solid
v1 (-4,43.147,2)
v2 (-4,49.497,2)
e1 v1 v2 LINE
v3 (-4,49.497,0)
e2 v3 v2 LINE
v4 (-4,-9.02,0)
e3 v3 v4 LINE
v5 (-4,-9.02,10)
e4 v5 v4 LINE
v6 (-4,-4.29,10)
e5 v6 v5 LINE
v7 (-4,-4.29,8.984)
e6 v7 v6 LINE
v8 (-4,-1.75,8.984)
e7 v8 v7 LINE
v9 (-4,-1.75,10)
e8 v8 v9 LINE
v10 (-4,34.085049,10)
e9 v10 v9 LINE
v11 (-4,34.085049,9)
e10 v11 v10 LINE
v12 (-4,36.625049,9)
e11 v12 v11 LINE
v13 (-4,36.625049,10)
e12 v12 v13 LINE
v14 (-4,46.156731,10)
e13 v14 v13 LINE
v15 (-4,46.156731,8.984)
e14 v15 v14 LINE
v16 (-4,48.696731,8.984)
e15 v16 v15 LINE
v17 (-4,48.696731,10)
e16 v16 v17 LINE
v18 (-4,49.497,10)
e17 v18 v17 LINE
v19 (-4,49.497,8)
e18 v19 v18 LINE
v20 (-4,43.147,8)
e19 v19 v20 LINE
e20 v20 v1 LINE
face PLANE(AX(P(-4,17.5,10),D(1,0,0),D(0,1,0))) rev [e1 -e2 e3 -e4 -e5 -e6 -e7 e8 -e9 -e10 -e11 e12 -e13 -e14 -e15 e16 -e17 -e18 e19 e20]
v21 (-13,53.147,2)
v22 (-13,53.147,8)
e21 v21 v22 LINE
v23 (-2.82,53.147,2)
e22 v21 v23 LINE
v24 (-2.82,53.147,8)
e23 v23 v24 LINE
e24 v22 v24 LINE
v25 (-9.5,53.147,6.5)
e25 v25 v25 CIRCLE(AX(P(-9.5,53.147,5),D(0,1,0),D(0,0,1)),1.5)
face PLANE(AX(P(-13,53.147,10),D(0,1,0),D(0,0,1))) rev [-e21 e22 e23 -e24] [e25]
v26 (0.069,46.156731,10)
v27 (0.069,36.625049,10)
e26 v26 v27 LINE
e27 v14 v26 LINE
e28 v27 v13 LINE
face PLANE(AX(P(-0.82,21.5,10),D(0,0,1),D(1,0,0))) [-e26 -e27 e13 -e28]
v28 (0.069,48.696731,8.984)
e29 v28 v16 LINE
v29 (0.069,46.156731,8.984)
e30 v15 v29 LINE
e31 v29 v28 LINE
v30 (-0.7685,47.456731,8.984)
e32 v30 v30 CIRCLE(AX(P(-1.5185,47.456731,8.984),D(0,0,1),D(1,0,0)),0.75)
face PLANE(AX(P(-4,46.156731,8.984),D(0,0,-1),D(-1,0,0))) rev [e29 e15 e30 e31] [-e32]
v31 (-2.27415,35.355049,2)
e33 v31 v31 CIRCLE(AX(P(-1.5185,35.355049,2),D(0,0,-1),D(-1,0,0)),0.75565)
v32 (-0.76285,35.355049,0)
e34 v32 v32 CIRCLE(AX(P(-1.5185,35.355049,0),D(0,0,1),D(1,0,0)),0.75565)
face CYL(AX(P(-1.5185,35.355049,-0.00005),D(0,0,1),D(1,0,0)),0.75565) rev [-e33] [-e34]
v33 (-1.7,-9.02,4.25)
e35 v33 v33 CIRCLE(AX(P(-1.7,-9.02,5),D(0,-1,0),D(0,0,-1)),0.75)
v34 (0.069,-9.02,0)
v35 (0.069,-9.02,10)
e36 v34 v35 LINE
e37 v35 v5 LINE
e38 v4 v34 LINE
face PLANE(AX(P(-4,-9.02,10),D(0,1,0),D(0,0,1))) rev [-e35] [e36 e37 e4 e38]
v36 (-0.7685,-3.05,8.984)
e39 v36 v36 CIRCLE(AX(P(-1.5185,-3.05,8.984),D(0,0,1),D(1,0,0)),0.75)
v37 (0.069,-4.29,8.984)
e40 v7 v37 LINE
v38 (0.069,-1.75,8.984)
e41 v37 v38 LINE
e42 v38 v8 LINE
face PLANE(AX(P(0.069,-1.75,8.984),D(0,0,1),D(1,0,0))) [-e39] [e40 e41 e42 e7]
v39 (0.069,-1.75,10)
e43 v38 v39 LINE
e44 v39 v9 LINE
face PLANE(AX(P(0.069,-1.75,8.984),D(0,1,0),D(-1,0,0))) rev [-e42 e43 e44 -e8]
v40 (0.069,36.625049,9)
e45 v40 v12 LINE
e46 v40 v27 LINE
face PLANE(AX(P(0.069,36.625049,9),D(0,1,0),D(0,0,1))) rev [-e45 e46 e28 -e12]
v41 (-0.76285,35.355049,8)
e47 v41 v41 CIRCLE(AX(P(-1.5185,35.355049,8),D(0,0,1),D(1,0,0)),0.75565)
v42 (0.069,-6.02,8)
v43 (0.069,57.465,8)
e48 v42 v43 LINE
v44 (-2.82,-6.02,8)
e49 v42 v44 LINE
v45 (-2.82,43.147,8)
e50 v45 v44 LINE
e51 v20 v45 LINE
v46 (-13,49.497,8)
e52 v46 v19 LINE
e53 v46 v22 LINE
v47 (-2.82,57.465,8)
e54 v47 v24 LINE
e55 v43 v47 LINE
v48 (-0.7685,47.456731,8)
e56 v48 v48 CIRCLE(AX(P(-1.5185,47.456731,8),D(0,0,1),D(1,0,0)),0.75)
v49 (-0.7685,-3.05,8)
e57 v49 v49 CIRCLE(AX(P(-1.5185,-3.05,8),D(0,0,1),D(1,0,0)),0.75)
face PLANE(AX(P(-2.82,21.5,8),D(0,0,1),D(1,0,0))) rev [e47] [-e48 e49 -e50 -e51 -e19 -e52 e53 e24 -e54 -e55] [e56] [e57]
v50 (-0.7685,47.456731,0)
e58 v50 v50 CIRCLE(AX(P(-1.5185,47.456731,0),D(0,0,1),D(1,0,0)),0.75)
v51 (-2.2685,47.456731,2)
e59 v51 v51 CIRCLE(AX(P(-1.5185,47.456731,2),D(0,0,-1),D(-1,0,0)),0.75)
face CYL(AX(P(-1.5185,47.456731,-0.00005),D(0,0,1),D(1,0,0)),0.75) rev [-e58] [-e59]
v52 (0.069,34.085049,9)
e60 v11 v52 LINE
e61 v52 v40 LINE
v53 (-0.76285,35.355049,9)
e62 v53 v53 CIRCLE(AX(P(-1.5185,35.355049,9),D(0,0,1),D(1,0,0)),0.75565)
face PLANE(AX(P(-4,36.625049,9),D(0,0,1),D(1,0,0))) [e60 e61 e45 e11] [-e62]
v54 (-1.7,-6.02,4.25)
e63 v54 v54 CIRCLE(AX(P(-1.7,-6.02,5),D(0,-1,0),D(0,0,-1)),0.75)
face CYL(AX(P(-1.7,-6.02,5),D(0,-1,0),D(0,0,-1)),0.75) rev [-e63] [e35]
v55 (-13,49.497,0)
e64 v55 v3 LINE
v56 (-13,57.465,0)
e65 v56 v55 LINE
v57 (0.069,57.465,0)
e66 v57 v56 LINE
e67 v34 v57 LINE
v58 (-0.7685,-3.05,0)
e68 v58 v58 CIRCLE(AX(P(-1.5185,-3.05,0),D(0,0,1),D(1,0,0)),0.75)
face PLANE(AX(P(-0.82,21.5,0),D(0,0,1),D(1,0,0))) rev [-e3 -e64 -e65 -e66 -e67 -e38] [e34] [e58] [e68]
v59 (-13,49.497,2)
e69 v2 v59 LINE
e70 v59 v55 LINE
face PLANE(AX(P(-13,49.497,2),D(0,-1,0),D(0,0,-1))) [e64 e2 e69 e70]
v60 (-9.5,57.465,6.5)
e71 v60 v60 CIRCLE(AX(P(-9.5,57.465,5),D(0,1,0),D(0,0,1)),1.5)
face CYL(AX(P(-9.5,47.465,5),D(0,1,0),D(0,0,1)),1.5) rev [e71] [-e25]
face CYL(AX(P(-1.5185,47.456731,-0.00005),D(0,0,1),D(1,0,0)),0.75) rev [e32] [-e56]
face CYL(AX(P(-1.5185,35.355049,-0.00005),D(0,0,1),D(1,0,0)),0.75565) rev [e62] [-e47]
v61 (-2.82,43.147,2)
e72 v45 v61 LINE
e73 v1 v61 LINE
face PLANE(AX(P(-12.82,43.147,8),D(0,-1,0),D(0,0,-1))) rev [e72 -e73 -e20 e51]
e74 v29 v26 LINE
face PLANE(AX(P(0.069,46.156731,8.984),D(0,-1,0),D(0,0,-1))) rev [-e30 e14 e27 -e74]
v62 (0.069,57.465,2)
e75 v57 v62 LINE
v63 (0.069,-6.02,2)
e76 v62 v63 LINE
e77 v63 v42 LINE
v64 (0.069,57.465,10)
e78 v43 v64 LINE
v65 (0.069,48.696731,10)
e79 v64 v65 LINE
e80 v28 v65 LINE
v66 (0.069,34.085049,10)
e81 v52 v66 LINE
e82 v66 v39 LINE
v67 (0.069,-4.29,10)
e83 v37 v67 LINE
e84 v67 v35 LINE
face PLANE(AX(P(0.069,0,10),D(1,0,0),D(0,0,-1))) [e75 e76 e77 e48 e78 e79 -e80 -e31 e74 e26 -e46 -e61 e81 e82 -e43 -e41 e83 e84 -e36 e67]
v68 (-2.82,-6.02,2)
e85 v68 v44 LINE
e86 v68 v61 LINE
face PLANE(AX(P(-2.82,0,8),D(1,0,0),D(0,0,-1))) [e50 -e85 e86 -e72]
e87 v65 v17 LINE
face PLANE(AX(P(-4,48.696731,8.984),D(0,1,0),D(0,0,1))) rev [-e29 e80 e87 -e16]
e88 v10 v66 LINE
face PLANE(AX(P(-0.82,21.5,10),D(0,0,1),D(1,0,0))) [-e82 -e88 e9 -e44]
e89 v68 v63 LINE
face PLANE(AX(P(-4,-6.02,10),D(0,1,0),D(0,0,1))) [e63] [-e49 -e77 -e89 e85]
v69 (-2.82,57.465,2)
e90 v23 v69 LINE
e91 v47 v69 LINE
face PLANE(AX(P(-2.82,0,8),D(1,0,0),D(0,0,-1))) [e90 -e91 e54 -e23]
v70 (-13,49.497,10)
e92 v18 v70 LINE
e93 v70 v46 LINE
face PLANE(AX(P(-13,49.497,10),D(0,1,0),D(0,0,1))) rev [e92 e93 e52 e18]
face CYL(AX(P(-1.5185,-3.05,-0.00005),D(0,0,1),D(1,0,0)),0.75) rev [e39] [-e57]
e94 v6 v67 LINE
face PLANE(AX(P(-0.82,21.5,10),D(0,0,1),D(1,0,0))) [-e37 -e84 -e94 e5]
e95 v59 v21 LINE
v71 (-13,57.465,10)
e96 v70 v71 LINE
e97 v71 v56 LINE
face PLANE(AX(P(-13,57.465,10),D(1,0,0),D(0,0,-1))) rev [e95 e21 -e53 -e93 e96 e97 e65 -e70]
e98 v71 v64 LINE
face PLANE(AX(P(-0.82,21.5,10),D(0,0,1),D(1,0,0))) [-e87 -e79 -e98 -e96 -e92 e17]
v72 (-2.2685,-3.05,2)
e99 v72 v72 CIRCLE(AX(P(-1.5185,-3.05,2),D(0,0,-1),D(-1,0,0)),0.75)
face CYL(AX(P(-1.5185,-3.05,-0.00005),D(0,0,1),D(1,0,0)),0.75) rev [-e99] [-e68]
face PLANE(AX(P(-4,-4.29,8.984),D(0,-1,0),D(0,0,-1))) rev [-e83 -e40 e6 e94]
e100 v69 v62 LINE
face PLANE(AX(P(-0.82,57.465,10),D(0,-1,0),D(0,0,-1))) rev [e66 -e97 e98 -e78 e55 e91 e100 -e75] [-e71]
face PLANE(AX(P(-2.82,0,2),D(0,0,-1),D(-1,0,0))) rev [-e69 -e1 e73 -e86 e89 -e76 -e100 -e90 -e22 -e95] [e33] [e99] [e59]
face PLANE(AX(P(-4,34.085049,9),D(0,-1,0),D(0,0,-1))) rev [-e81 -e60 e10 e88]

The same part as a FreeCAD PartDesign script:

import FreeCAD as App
import Part
import Sketcher
from FreeCAD import Vector
Q = App.Units.Quantity

doc = App.newDocument("Part")
body = doc.addObject("PartDesign::Body", "Body")

sketch1 = doc.addObject("Sketcher::SketchObject", "Sketch")
body.addObject(sketch1)
sketch1.AttachmentSupport = (doc.XY_Plane, [""])
sketch1.MapMode = "FlatFace"
sketch1.addGeometry([
    Part.LineSegment(Vector(-4, 0, 0), Vector(-0.8, 0, 0)),
    Part.LineSegment(Vector(-0.8, 0, 0), Vector(-0.8, 21.5, 0)),
    Part.LineSegment(Vector(-0.8, 21.5, 0), Vector(-6.3, 21.5, 0)),
    Part.LineSegment(Vector(-6.3, 21.5, 0), Vector(-6.3, 17.5, 0)),
    Part.LineSegment(Vector(-6.3, 17.5, 0), Vector(-4, 17.5, 0)),
    Part.LineSegment(Vector(-4, 17.5, 0), Vector(-4, 0, 0)),
], False)
sketch1.addConstraint([
    Sketcher.Constraint("Coincident", 0, 2, 1, 1),
    Sketcher.Constraint("Coincident", 1, 2, 2, 1),
    Sketcher.Constraint("Coincident", 2, 2, 3, 1),
    Sketcher.Constraint("Coincident", 3, 2, 4, 1),
    Sketcher.Constraint("Coincident", 4, 2, 5, 1),
    Sketcher.Constraint("Coincident", 5, 2, 0, 1),
    Sketcher.Constraint("Horizontal", 0),
    Sketcher.Constraint("Vertical", 1),
    Sketcher.Constraint("Horizontal", 2),
    Sketcher.Constraint("Vertical", 3),
    Sketcher.Constraint("Horizontal", 4),
    Sketcher.Constraint("Vertical", 5),
    Sketcher.Constraint("PointOnObject", 0, 2, -1),
    Sketcher.Constraint("DistanceY", 3, 2, 3, 1, Q("4 mm")),
    Sketcher.Constraint("DistanceX", 2, 2, 2, 1, Q("5.5 mm")),
    Sketcher.Constraint("DistanceY", 1, 1, 1, 2, Q("21.5 mm")),
    Sketcher.Constraint("DistanceX", 4, 2, -1, 1, Q("4 mm")),
    Sketcher.Constraint("DistanceX", 0, 1, 0, 2, Q("3.18 mm")),
])
pad1 = doc.addObject("PartDesign::Pad", "Pad")
body.addObject(pad1)
pad1.Profile = sketch1
pad1.Length = 10

sketch2 = doc.addObject("Sketcher::SketchObject", "Sketch001")
body.addObject(sketch2)
sketch2.AttachmentSupport = (doc.YZ_Plane, [""])
sketch2.MapMode = "FlatFace"
sketch2.AttachmentOffset = App.Placement(Vector(0, 0, -0.82), App.Rotation())
sketch2.addGeometry([
    Part.LineSegment(Vector(22, 8, 0), Vector(0, 8, 0)),
    Part.LineSegment(Vector(0, 8, 0), Vector(0, 2, 0)),
    Part.LineSegment(Vector(0, 2, 0), Vector(22, 2, 0)),
    Part.LineSegment(Vector(22, 2, 0), Vector(22, 8, 0)),
], False)
sketch2.addConstraint([
    Sketcher.Constraint("Coincident", 0, 2, 1, 1),
    Sketcher.Constraint("Coincident", 1, 2, 2, 1),
    Sketcher.Constraint("Coincident", 2, 2, 3, 1),
    Sketcher.Constraint("Coincident", 3, 2, 0, 1),
    Sketcher.Constraint("Horizontal", 0),
    Sketcher.Constraint("Vertical", 1),
    Sketcher.Constraint("Horizontal", 2),
    Sketcher.Constraint("Vertical", 3),
    Sketcher.Constraint("PointOnObject", 0, 2, -2),
    Sketcher.Constraint("DistanceY", 1, 2, 1, 1, Q("6 mm")),
    Sketcher.Constraint("DistanceX", 0, 2, 0, 1, Q("21.5 mm")),
    Sketcher.Constraint("DistanceY", -1, 1, 0, 2, Q("8 mm")),
])
pocket1 = doc.addObject("PartDesign::Pocket", "Pocket")
body.addObject(pocket1)
pocket1.Profile = sketch2
pocket1.Length = 2

sketch3 = doc.addObject("Sketcher::SketchObject", "Sketch002")
body.addObject(sketch3)
sketch3.AttachmentSupport = (doc.YZ_Plane, [""])
sketch3.MapMode = "FlatFace"
sketch3.AttachmentOffset = App.Placement(Vector(0, 0, -6.32), App.Rotation())
sketch3.addGeometry([
    Part.LineSegment(Vector(21.5, 0, 0), Vector(17.5, 0, 0)),
    Part.LineSegment(Vector(17.5, 0, 0), Vector(17.5, 10, 0)),
    Part.LineSegment(Vector(17.5, 10, 0), Vector(21.5, 10, 0)),
    Part.LineSegment(Vector(21.5, 10, 0), Vector(21.5, 0, 0)),
], False)
sketch3.addConstraint([
    Sketcher.Constraint("Coincident", 0, 2, 1, 1),
    Sketcher.Constraint("Coincident", 1, 2, 2, 1),
    Sketcher.Constraint("Coincident", 2, 2, 3, 1),
    Sketcher.Constraint("Coincident", 3, 2, 0, 1),
    Sketcher.Constraint("Horizontal", 0),
    Sketcher.Constraint("Vertical", 1),
    Sketcher.Constraint("Horizontal", 2),
    Sketcher.Constraint("Vertical", 3),
    Sketcher.Constraint("PointOnObject", 0, 2, -1),
    Sketcher.Constraint("DistanceX", 0, 2, 0, 1, Q("4 mm")),
    Sketcher.Constraint("DistanceY", 1, 1, 1, 2, Q("10 mm")),
    Sketcher.Constraint("DistanceX", -1, 1, 0, 2, Q("17.5 mm")),
])
pocket2 = doc.addObject("PartDesign::Pocket", "Pocket001")
body.addObject(pocket2)
pocket2.Profile = sketch3
pocket2.Length = 2.32
pocket2.Reversed = True

sketch4 = doc.addObject("Sketcher::SketchObject", "Sketch003")
body.addObject(sketch4)
sketch4.AttachmentSupport = (doc.XZ_Plane, [""])
sketch4.MapMode = "FlatFace"
sketch4.AttachmentOffset = App.Placement(Vector(0, 0, -21.5), App.Rotation())
sketch4.addGeometry([
    Part.LineSegment(Vector(-4, 10, 0), Vector(-0.8, 10, 0)),
    Part.LineSegment(Vector(-0.8, 10, 0), Vector(-0.8, 8, 0)),
    Part.LineSegment(Vector(-0.8, 8, 0), Vector(-2.8, 8, 0)),
    Part.LineSegment(Vector(-2.8, 8, 0), Vector(-2.8, 2, 0)),
    Part.LineSegment(Vector(-2.8, 2, 0), Vector(-0.8, 2, 0)),
    Part.LineSegment(Vector(-0.8, 2, 0), Vector(-0.8, 0, 0)),
    Part.LineSegment(Vector(-0.8, 0, 0), Vector(-4, 0, 0)),
    Part.LineSegment(Vector(-4, 0, 0), Vector(-4, 10, 0)),
], False)
sketch4.addConstraint([
    Sketcher.Constraint("Coincident", 0, 2, 1, 1),
    Sketcher.Constraint("Coincident", 1, 2, 2, 1),
    Sketcher.Constraint("Coincident", 2, 2, 3, 1),
    Sketcher.Constraint("Coincident", 3, 2, 4, 1),
    Sketcher.Constraint("Coincident", 4, 2, 5, 1),
    Sketcher.Constraint("Coincident", 5, 2, 6, 1),
    Sketcher.Constraint("Coincident", 6, 2, 7, 1),
    Sketcher.Constraint("Coincident", 7, 2, 0, 1),
    Sketcher.Constraint("Horizontal", 0),
    Sketcher.Constraint("Vertical", 1),
    Sketcher.Constraint("Horizontal", 2),
    Sketcher.Constraint("Vertical", 3),
    Sketcher.Constraint("Horizontal", 4),
    Sketcher.Constraint("Vertical", 5),
    Sketcher.Constraint("Horizontal", 6),
    Sketcher.Constraint("Vertical", 7),
    Sketcher.Constraint("PointOnObject", 5, 2, -1),
    Sketcher.Constraint("Vertical", 1, 2, 4, 2),
    Sketcher.Constraint("Equal", 4, 1),
    Sketcher.Constraint("Equal", 1, 5),
    Sketcher.Constraint("DistanceX", 2, 2, 2, 1, Q("2 mm")),
    Sketcher.Constraint("DistanceY", 3, 2, 3, 1, Q("6 mm")),
    Sketcher.Constraint("DistanceX", 6, 2, -1, 1, Q("4 mm")),
    Sketcher.Constraint("DistanceX", 0, 1, 0, 2, Q("3.18 mm")),
])
pad2 = doc.addObject("PartDesign::Pad", "Pad001")
body.addObject(pad2)
pad2.Profile = sketch4
pad2.Length = 35.965
pad2.Reversed = True

sketch5 = doc.addObject("Sketcher::SketchObject", "Sketch004")
body.addObject(sketch5)
sketch5.AttachmentSupport = (doc.YZ_Plane, [""])
sketch5.MapMode = "FlatFace"
sketch5.AttachmentOffset = App.Placement(Vector(0, 0, -4), App.Rotation())
sketch5.addGeometry([
    Part.LineSegment(Vector(57.5, 0, 0), Vector(53.1, 0, 0)),
    Part.LineSegment(Vector(53.1, 0, 0), Vector(53.1, 10, 0)),
    Part.LineSegment(Vector(53.1, 10, 0), Vector(57.5, 10, 0)),
    Part.LineSegment(Vector(57.5, 10, 0), Vector(57.5, 0, 0)),
], False)
sketch5.addConstraint([
    Sketcher.Constraint("Coincident", 0, 2, 1, 1),
    Sketcher.Constraint("Coincident", 1, 2, 2, 1),
    Sketcher.Constraint("Coincident", 2, 2, 3, 1),
    Sketcher.Constraint("Coincident", 3, 2, 0, 1),
    Sketcher.Constraint("Horizontal", 0),
    Sketcher.Constraint("Vertical", 1),
    Sketcher.Constraint("Horizontal", 2),
    Sketcher.Constraint("Vertical", 3),
    Sketcher.Constraint("PointOnObject", 0, 2, -1),
    Sketcher.Constraint("DistanceY", 1, 1, 1, 2, Q("10 mm")),
    Sketcher.Constraint("DistanceX", 0, 2, 0, 1, Q("4.318 mm")),
    Sketcher.Constraint("DistanceX", -1, 1, 0, 2, Q("53.147 mm")),
])
pad3 = doc.addObject("PartDesign::Pad", "Pad002")
body.addObject(pad3)
pad3.Profile = sketch5
pad3.Length = 9
pad3.Reversed = True

sketch6 = doc.addObject("Sketcher::SketchObject", "Sketch005")
body.addObject(sketch6)
sketch6.AttachmentSupport = (doc.YZ_Plane, [""])
sketch6.MapMode = "FlatFace"
sketch6.AttachmentOffset = App.Placement(Vector(0, 0, -0.82), App.Rotation())
sketch6.addGeometry([
    Part.LineSegment(Vector(57.5, 10, 0), Vector(0, 10, 0)),
    Part.LineSegment(Vector(0, 10, 0), Vector(0, 8, 0)),
    Part.LineSegment(Vector(0, 8, 0), Vector(57.5, 8, 0)),
    Part.LineSegment(Vector(57.5, 8, 0), Vector(57.5, 10, 0)),
    Part.LineSegment(Vector(57.5, 2, 0), Vector(0, 2, 0)),
    Part.LineSegment(Vector(0, 2, 0), Vector(0, 0, 0)),
    Part.LineSegment(Vector(0, 0, 0), Vector(57.5, 0, 0)),
    Part.LineSegment(Vector(57.5, 0, 0), Vector(57.5, 2, 0)),
], False)
sketch6.addConstraint([
    Sketcher.Constraint("Coincident", 0, 2, 1, 1),
    Sketcher.Constraint("Coincident", 1, 2, 2, 1),
    Sketcher.Constraint("Coincident", 2, 2, 3, 1),
    Sketcher.Constraint("Coincident", 3, 2, 0, 1),
    Sketcher.Constraint("Coincident", 4, 2, 5, 1),
    Sketcher.Constraint("Coincident", 5, 2, 6, 1),
    Sketcher.Constraint("Coincident", 6, 2, 7, 1),
    Sketcher.Constraint("Coincident", 7, 2, 4, 1),
    Sketcher.Constraint("Horizontal", 0),
    Sketcher.Constraint("Vertical", 1),
    Sketcher.Constraint("Horizontal", 2),
    Sketcher.Constraint("Vertical", 3),
    Sketcher.Constraint("Horizontal", 4),
    Sketcher.Constraint("Vertical", 5),
    Sketcher.Constraint("Horizontal", 6),
    Sketcher.Constraint("Vertical", 7),
    Sketcher.Constraint("Coincident", 5, 2, -1, 1),
    Sketcher.Constraint("PointOnObject", 0, 2, -2),
    Sketcher.Constraint("Vertical", 3, 2, 6, 2),
    Sketcher.Constraint("Equal", 3, 5),
    Sketcher.Constraint("DistanceY", 1, 2, 1, 1, Q("2 mm")),
    Sketcher.Constraint("DistanceY", -1, 1, 0, 2, Q("10 mm")),
    Sketcher.Constraint("DistanceX", 0, 2, 0, 1, Q("57.465 mm")),
])
pad4 = doc.addObject("PartDesign::Pad", "Pad003")
body.addObject(pad4)
pad4.Profile = sketch6
pad4.Length = 0.889

sketch7 = doc.addObject("Sketcher::SketchObject", "Sketch006")
body.addObject(sketch7)
sketch7.AttachmentSupport = (doc.XZ_Plane, [""])
sketch7.MapMode = "FlatFace"
sketch7.addGeometry([
    Part.LineSegment(Vector(0.1, 10, 0), Vector(-4, 10, 0)),
    Part.LineSegment(Vector(-4, 10, 0), Vector(-4, 0, 0)),
    Part.LineSegment(Vector(-4, 0, 0), Vector(0.1, 0, 0)),
    Part.LineSegment(Vector(0.1, 0, 0), Vector(0.1, 2, 0)),
    Part.LineSegment(Vector(0.1, 2, 0), Vector(-2.8, 2, 0)),
    Part.LineSegment(Vector(-2.8, 2, 0), Vector(-2.8, 8, 0)),
    Part.LineSegment(Vector(-2.8, 8, 0), Vector(0.1, 8, 0)),
    Part.LineSegment(Vector(0.1, 8, 0), Vector(0.1, 10, 0)),
], False)
sketch7.addConstraint([
    Sketcher.Constraint("Coincident", 0, 2, 1, 1),
    Sketcher.Constraint("Coincident", 1, 2, 2, 1),
    Sketcher.Constraint("Coincident", 2, 2, 3, 1),
    Sketcher.Constraint("Coincident", 3, 2, 4, 1),
    Sketcher.Constraint("Coincident", 4, 2, 5, 1),
    Sketcher.Constraint("Coincident", 5, 2, 6, 1),
    Sketcher.Constraint("Coincident", 6, 2, 7, 1),
    Sketcher.Constraint("Coincident", 7, 2, 0, 1),
    Sketcher.Constraint("Horizontal", 0),
    Sketcher.Constraint("Vertical", 1),
    Sketcher.Constraint("Horizontal", 2),
    Sketcher.Constraint("Vertical", 3),
    Sketcher.Constraint("Horizontal", 4),
    Sketcher.Constraint("Vertical", 5),
    Sketcher.Constraint("Horizontal", 6),
    Sketcher.Constraint("Vertical", 7),
    Sketcher.Constraint("PointOnObject", 1, 2, -1),
    Sketcher.Constraint("Vertical", 3, 2, 6, 2),
    Sketcher.Constraint("Equal", 3, 7),
    Sketcher.Constraint("DistanceY", 1, 2, 1, 1, Q("10 mm")),
    Sketcher.Constraint("DistanceY", 3, 1, 3, 2, Q("2 mm")),
    Sketcher.Constraint("DistanceX", 0, 2, -1, 1, Q("4 mm")),
    Sketcher.Constraint("DistanceX", 0, 2, 0, 1, Q("4.069 mm")),
    Sketcher.Constraint("DistanceX", 4, 2, 4, 1, Q("2.889 mm")),
])
pad5 = doc.addObject("PartDesign::Pad", "Pad004")
body.addObject(pad5)
pad5.Profile = sketch7
pad5.Length = 9.02

sketch8 = doc.addObject("Sketcher::SketchObject", "Sketch007")
body.addObject(sketch8)
sketch8.AttachmentSupport = (doc.XY_Plane, [""])
sketch8.MapMode = "FlatFace"
sketch8.AttachmentOffset = App.Placement(Vector(0, 0, 10), App.Rotation())
sketch8.addGeometry([
    Part.LineSegment(Vector(0.1, -4.3, 0), Vector(0.1, -1.8, 0)),
    Part.LineSegment(Vector(0.1, -1.8, 0), Vector(-4, -1.8, 0)),
    Part.LineSegment(Vector(-4, -1.8, 0), Vector(-4, -4.3, 0)),
    Part.LineSegment(Vector(-4, -4.3, 0), Vector(0.1, -4.3, 0)),
    Part.LineSegment(Vector(-4, 48.7, 0), Vector(-4, 46.2, 0)),
    Part.LineSegment(Vector(-4, 46.2, 0), Vector(0.1, 46.2, 0)),
    Part.LineSegment(Vector(0.1, 46.2, 0), Vector(0.1, 48.7, 0)),
    Part.LineSegment(Vector(0.1, 48.7, 0), Vector(-4, 48.7, 0)),
], False)
sketch8.addConstraint([
    Sketcher.Constraint("Coincident", 0, 2, 1, 1),
    Sketcher.Constraint("Coincident", 1, 2, 2, 1),
    Sketcher.Constraint("Coincident", 2, 2, 3, 1),
    Sketcher.Constraint("Coincident", 3, 2, 0, 1),
    Sketcher.Constraint("Coincident", 4, 2, 5, 1),
    Sketcher.Constraint("Coincident", 5, 2, 6, 1),
    Sketcher.Constraint("Coincident", 6, 2, 7, 1),
    Sketcher.Constraint("Coincident", 7, 2, 4, 1),
    Sketcher.Constraint("Vertical", 0),
    Sketcher.Constraint("Horizontal", 1),
    Sketcher.Constraint("Vertical", 2),
    Sketcher.Constraint("Horizontal", 3),
    Sketcher.Constraint("Vertical", 4),
    Sketcher.Constraint("Horizontal", 5),
    Sketcher.Constraint("Vertical", 6),
    Sketcher.Constraint("Horizontal", 7),
    Sketcher.Constraint("Vertical", 2, 2, 4, 2),
    Sketcher.Constraint("Vertical", 3, 2, 5, 2),
    Sketcher.Constraint("Equal", 2, 4),
    Sketcher.Constraint("DistanceX", 1, 2, -1, 1, Q("4 mm")),
    Sketcher.Constraint("DistanceY", 0, 1, 0, 2, Q("2.54 mm")),
    Sketcher.Constraint("DistanceX", 1, 2, 1, 1, Q("4.069 mm")),
    Sketcher.Constraint("DistanceY", 0, 2, -1, 1, Q("1.75 mm")),
    Sketcher.Constraint("DistanceY", -1, 1, 4, 2, Q("46.156731 mm")),
])
pocket3 = doc.addObject("PartDesign::Pocket", "Pocket002")
body.addObject(pocket3)
pocket3.Profile = sketch8
pocket3.Length = 1.016

sketch9 = doc.addObject("Sketcher::SketchObject", "Sketch008")
body.addObject(sketch9)
sketch9.AttachmentSupport = (doc.XY_Plane, [""])
sketch9.MapMode = "FlatFace"
sketch9.AttachmentOffset = App.Placement(Vector(0, 0, 10), App.Rotation())
sketch9.addGeometry([
    Part.LineSegment(Vector(-4, 36.6, 0), Vector(-4, 34.1, 0)),
    Part.LineSegment(Vector(-4, 34.1, 0), Vector(0.1, 34.1, 0)),
    Part.LineSegment(Vector(0.1, 34.1, 0), Vector(0.1, 36.6, 0)),
    Part.LineSegment(Vector(0.1, 36.6, 0), Vector(-4, 36.6, 0)),
], False)
sketch9.addConstraint([
    Sketcher.Constraint("Coincident", 0, 2, 1, 1),
    Sketcher.Constraint("Coincident", 1, 2, 2, 1),
    Sketcher.Constraint("Coincident", 2, 2, 3, 1),
    Sketcher.Constraint("Coincident", 3, 2, 0, 1),
    Sketcher.Constraint("Vertical", 0),
    Sketcher.Constraint("Horizontal", 1),
    Sketcher.Constraint("Vertical", 2),
    Sketcher.Constraint("Horizontal", 3),
    Sketcher.Constraint("DistanceX", 0, 2, -1, 1, Q("4 mm")),
    Sketcher.Constraint("DistanceY", 0, 2, 0, 1, Q("2.54 mm")),
    Sketcher.Constraint("DistanceX", 1, 1, 1, 2, Q("4.069 mm")),
    Sketcher.Constraint("DistanceY", -1, 1, 0, 2, Q("34.085049 mm")),
])
pocket4 = doc.addObject("PartDesign::Pocket", "Pocket003")
body.addObject(pocket4)
pocket4.Profile = sketch9
pocket4.Length = 1

sketch10 = doc.addObject("Sketcher::SketchObject", "Sketch009")
body.addObject(sketch10)
sketch10.AttachmentSupport = (doc.XY_Plane, [""])
sketch10.MapMode = "FlatFace"
sketch10.AttachmentOffset = App.Placement(Vector(0, 0, 9), App.Rotation())
sketch10.addGeometry(Part.Circle(Vector(-1.5, 35.4, 0), Vector(0, 0, 1), 0.8), False)
sketch10.addConstraint([
    Sketcher.Constraint("Diameter", 0, Q("1.5113 mm")),
    Sketcher.Constraint("DistanceX", 0, 3, -1, 1, Q("1.5185 mm")),
    Sketcher.Constraint("DistanceY", -1, 1, 0, 3, Q("35.355049 mm")),
])
pocket5 = doc.addObject("PartDesign::Pocket", "Pocket004")
body.addObject(pocket5)
pocket5.Profile = sketch10
pocket5.Type = "ThroughAll"

sketch11 = doc.addObject("Sketcher::SketchObject", "Sketch010")
body.addObject(sketch11)
sketch11.AttachmentSupport = (doc.XZ_Plane, [""])
sketch11.MapMode = "FlatFace"
sketch11.AttachmentOffset = App.Placement(Vector(0, 0, -57.465), App.Rotation())
sketch11.addGeometry(Part.Circle(Vector(-9.5, 5, 0), Vector(0, 0, 1), 1.5), False)
sketch11.addConstraint([
    Sketcher.Constraint("Diameter", 0, Q("3 mm")),
    Sketcher.Constraint("DistanceY", -1, 1, 0, 3, Q("5 mm")),
    Sketcher.Constraint("DistanceX", 0, 3, -1, 1, Q("9.5 mm")),
])
pocket6 = doc.addObject("PartDesign::Pocket", "Pocket005")
body.addObject(pocket6)
pocket6.Profile = sketch11
pocket6.Length = 10
pocket6.Reversed = True

sketch12 = doc.addObject("Sketcher::SketchObject", "Sketch011")
body.addObject(sketch12)
sketch12.AttachmentSupport = (doc.XY_Plane, [""])
sketch12.MapMode = "FlatFace"
sketch12.AttachmentOffset = App.Placement(Vector(0, 0, 8.984), App.Rotation())
sketch12.addGeometry([
    Part.Circle(Vector(-1.5, 47.5, 0), Vector(0, 0, 1), 0.8),
    Part.Circle(Vector(-1.5, -3, 0), Vector(0, 0, 1), 0.8),
], False)
sketch12.addConstraint([
    Sketcher.Constraint("Equal", 0, 1),
    Sketcher.Constraint("Vertical", 0, 3, 1, 3),
    Sketcher.Constraint("Diameter", 0, Q("1.5 mm")),
    Sketcher.Constraint("DistanceY", 1, 3, -1, 1, Q("3.05 mm")),
    Sketcher.Constraint("DistanceX", 0, 3, -1, 1, Q("1.5185 mm")),
    Sketcher.Constraint("DistanceY", -1, 1, 0, 3, Q("47.456731 mm")),
])
pocket7 = doc.addObject("PartDesign::Pocket", "Pocket006")
body.addObject(pocket7)
pocket7.Profile = sketch12
pocket7.Type = "ThroughAll"

sketch13 = doc.addObject("Sketcher::SketchObject", "Sketch012")
body.addObject(sketch13)
sketch13.AttachmentSupport = (doc.YZ_Plane, [""])
sketch13.MapMode = "FlatFace"
sketch13.AttachmentOffset = App.Placement(Vector(0, 0, -2.82), App.Rotation())
sketch13.addGeometry([
    Part.LineSegment(Vector(53, 8, 0), Vector(43, 8, 0)),
    Part.LineSegment(Vector(43, 8, 0), Vector(43, 2, 0)),
    Part.LineSegment(Vector(43, 2, 0), Vector(53, 2, 0)),
    Part.LineSegment(Vector(53, 2, 0), Vector(53, 8, 0)),
], False)
sketch13.addConstraint([
    Sketcher.Constraint("Coincident", 0, 2, 1, 1),
    Sketcher.Constraint("Coincident", 1, 2, 2, 1),
    Sketcher.Constraint("Coincident", 2, 2, 3, 1),
    Sketcher.Constraint("Coincident", 3, 2, 0, 1),
    Sketcher.Constraint("Horizontal", 0),
    Sketcher.Constraint("Vertical", 1),
    Sketcher.Constraint("Horizontal", 2),
    Sketcher.Constraint("Vertical", 3),
    Sketcher.Constraint("DistanceX", 0, 2, 0, 1, Q("10 mm")),
    Sketcher.Constraint("DistanceY", 1, 2, 1, 1, Q("6 mm")),
    Sketcher.Constraint("DistanceY", -1, 1, 0, 2, Q("8 mm")),
    Sketcher.Constraint("DistanceX", -1, 1, 0, 2, Q("43.147 mm")),
])
pocket8 = doc.addObject("PartDesign::Pocket", "Pocket007")
body.addObject(pocket8)
pocket8.Profile = sketch13
pocket8.Length = 10

sketch14 = doc.addObject("Sketcher::SketchObject", "Sketch013")
body.addObject(sketch14)
sketch14.AttachmentSupport = (doc.XZ_Plane, [""])
sketch14.MapMode = "FlatFace"
sketch14.AttachmentOffset = App.Placement(Vector(0, 0, -53.147), App.Rotation())
sketch14.addGeometry([
    Part.LineSegment(Vector(-13, 10, 0), Vector(-13, 8, 0)),
    Part.LineSegment(Vector(-13, 8, 0), Vector(-4, 8, 0)),
    Part.LineSegment(Vector(-4, 8, 0), Vector(-4, 10, 0)),
    Part.LineSegment(Vector(-4, 10, 0), Vector(-13, 10, 0)),
    Part.LineSegment(Vector(-13, 2, 0), Vector(-13, 0, 0)),
    Part.LineSegment(Vector(-13, 0, 0), Vector(-4, 0, 0)),
    Part.LineSegment(Vector(-4, 0, 0), Vector(-4, 2, 0)),
    Part.LineSegment(Vector(-4, 2, 0), Vector(-13, 2, 0)),
], False)
sketch14.addConstraint([
    Sketcher.Constraint("Coincident", 0, 2, 1, 1),
    Sketcher.Constraint("Coincident", 1, 2, 2, 1),
    Sketcher.Constraint("Coincident", 2, 2, 3, 1),
    Sketcher.Constraint("Coincident", 3, 2, 0, 1),
    Sketcher.Constraint("Coincident", 4, 2, 5, 1),
    Sketcher.Constraint("Coincident", 5, 2, 6, 1),
    Sketcher.Constraint("Coincident", 6, 2, 7, 1),
    Sketcher.Constraint("Coincident", 7, 2, 4, 1),
    Sketcher.Constraint("Vertical", 0),
    Sketcher.Constraint("Horizontal", 1),
    Sketcher.Constraint("Vertical", 2),
    Sketcher.Constraint("Horizontal", 3),
    Sketcher.Constraint("Vertical", 4),
    Sketcher.Constraint("Horizontal", 5),
    Sketcher.Constraint("Vertical", 6),
    Sketcher.Constraint("Horizontal", 7),
    Sketcher.Constraint("PointOnObject", 4, 2, -1),
    Sketcher.Constraint("Vertical", 3, 2, 4, 2),
    Sketcher.Constraint("Vertical", 2, 2, 5, 2),
    Sketcher.Constraint("Equal", 2, 4),
    Sketcher.Constraint("DistanceX", 1, 1, 1, 2, Q("9 mm")),
    Sketcher.Constraint("DistanceY", 0, 2, 0, 1, Q("2 mm")),
    Sketcher.Constraint("DistanceX", 0, 2, -1, 1, Q("13 mm")),
    Sketcher.Constraint("DistanceY", -1, 1, 0, 2, Q("8 mm")),
])
pad6 = doc.addObject("PartDesign::Pad", "Pad005")
body.addObject(pad6)
pad6.Profile = sketch14
pad6.Length = 3.65

sketch15 = doc.addObject("Sketcher::SketchObject", "Sketch014")
body.addObject(sketch15)
sketch15.AttachmentSupport = (doc.XZ_Plane, [""])
sketch15.MapMode = "FlatFace"
sketch15.AttachmentOffset = App.Placement(Vector(0, 0, 9.02), App.Rotation())
sketch15.addGeometry([
    Part.LineSegment(Vector(-4, 10, 0), Vector(-4, 0, 0)),
    Part.LineSegment(Vector(-4, 0, 0), Vector(0.1, 0, 0)),
    Part.LineSegment(Vector(0.1, 0, 0), Vector(0.1, 10, 0)),
    Part.LineSegment(Vector(0.1, 10, 0), Vector(-4, 10, 0)),
], False)
sketch15.addConstraint([
    Sketcher.Constraint("Coincident", 0, 2, 1, 1),
    Sketcher.Constraint("Coincident", 1, 2, 2, 1),
    Sketcher.Constraint("Coincident", 2, 2, 3, 1),
    Sketcher.Constraint("Coincident", 3, 2, 0, 1),
    Sketcher.Constraint("Vertical", 0),
    Sketcher.Constraint("Horizontal", 1),
    Sketcher.Constraint("Vertical", 2),
    Sketcher.Constraint("Horizontal", 3),
    Sketcher.Constraint("PointOnObject", 0, 2, -1),
    Sketcher.Constraint("DistanceY", 0, 2, 0, 1, Q("10 mm")),
    Sketcher.Constraint("DistanceX", 0, 2, -1, 1, Q("4 mm")),
    Sketcher.Constraint("DistanceX", 1, 1, 1, 2, Q("4.069 mm")),
])
pad7 = doc.addObject("PartDesign::Pad", "Pad006")
body.addObject(pad7)
pad7.Profile = sketch15
pad7.Length = 3
pad7.Reversed = True

sketch16 = doc.addObject("Sketcher::SketchObject", "Sketch015")
body.addObject(sketch16)
sketch16.AttachmentSupport = (doc.XZ_Plane, [""])
sketch16.MapMode = "FlatFace"
sketch16.AttachmentOffset = App.Placement(Vector(0, 0, 9.02), App.Rotation())
sketch16.addGeometry(Part.Circle(Vector(-1.7, 5, 0), Vector(0, 0, 1), 0.8), False)
sketch16.addConstraint([
    Sketcher.Constraint("Diameter", 0, Q("1.5 mm")),
    Sketcher.Constraint("DistanceY", -1, 1, 0, 3, Q("5 mm")),
    Sketcher.Constraint("DistanceX", 0, 3, -1, 1, Q("1.7 mm")),
])
pocket9 = doc.addObject("PartDesign::Pocket", "Pocket008")
body.addObject(pocket9)
pocket9.Profile = sketch16
pocket9.Length = 3

doc.recompute()
